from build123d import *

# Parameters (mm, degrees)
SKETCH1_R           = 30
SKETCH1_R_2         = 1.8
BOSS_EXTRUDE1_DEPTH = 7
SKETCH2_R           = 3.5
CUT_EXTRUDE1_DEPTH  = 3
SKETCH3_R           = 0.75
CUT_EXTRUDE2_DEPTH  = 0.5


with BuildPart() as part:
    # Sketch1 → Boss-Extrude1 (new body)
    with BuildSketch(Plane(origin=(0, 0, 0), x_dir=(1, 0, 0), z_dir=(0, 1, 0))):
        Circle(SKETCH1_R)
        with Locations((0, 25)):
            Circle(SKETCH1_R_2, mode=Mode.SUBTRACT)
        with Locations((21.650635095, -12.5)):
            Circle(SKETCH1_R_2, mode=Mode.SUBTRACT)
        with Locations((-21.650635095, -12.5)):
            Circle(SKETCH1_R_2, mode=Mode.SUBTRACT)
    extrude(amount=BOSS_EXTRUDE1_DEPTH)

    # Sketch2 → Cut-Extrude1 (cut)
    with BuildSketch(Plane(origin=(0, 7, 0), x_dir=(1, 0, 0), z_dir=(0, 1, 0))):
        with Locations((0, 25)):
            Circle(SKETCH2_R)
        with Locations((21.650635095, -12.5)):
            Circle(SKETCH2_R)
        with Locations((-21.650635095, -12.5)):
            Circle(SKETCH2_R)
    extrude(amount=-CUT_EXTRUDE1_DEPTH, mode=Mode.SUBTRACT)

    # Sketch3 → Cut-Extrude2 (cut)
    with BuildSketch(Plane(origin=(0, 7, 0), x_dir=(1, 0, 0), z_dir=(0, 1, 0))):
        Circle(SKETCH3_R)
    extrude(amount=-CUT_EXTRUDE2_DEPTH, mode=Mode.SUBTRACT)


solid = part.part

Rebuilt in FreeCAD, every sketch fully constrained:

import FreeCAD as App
import Part
import Sketcher

V = App.Vector
Q = App.Units.Quantity

doc = App.newDocument("Part")
body = doc.addObject("PartDesign::Body", "Body")

sketch1 = body.newObject("Sketcher::SketchObject", "Sketch")
sketch1.AttachmentSupport = (doc.getObject("XZ_Plane"), [""])
sketch1.MapMode = "FlatFace"
sketch1.addGeometry(Part.Circle(V(0, 0, 0), V(0, 0, 1), 30), False)
sketch1.addGeometry(Part.Circle(V(-21.650635, 12.5, 0), V(0, 0, 1), 1.8), False)
sketch1.addGeometry(Part.Circle(V(21.650635, 12.5, 0), V(0, 0, 1), 1.8), False)
sketch1.addGeometry(Part.Circle(V(0, -25, 0), V(0, 0, 1), 1.8), False)
sketch1.addConstraint(Sketcher.Constraint("Coincident", 0, 3, -1, 1))
sketch1.addConstraint(Sketcher.Constraint("Equal", 1, 2))
sketch1.addConstraint(Sketcher.Constraint("Equal", 2, 3))
sketch1.addConstraint(Sketcher.Constraint("Symmetric", 1, 3, 2, 3, -2))
sketch1.addConstraint(Sketcher.Constraint("PointOnObject", 3, 3, -2))
sketch1.addConstraint(Sketcher.Constraint("Diameter", 0, Q("60 mm")))
sketch1.addConstraint(Sketcher.Constraint("Diameter", 1, Q("3.6 mm")))
sketch1.addConstraint(Sketcher.Constraint("DistanceY", 3, 3, -1, 1, Q("25 mm")))
sketch1.addConstraint(Sketcher.Constraint("DistanceY", -1, 1, 1, 3, Q("12.5 mm")))
sketch1.addConstraint(Sketcher.Constraint("DistanceX", 1, 3, 2, 3, Q("43.30127 mm")))
pad1 = body.newObject("PartDesign::Pad", "Pad")
pad1.Profile = sketch1
pad1.Length = 7
pad1.Reversed = True

sketch2 = body.newObject("Sketcher::SketchObject", "Sketch001")
sketch2.AttachmentSupport = (doc.getObject("XZ_Plane"), [""])
sketch2.MapMode = "FlatFace"
sketch2.AttachmentOffset = App.Placement(V(0, 0, -7), App.Rotation())
sketch2.addGeometry(Part.Circle(V(0, -25, 0), V(0, 0, 1), 3.5), False)
sketch2.addGeometry(Part.Circle(V(21.650635, 12.5, 0), V(0, 0, 1), 3.5), False)
sketch2.addGeometry(Part.Circle(V(-21.650635, 12.5, 0), V(0, 0, 1), 3.5), False)
sketch2.addConstraint(Sketcher.Constraint("Equal", 0, 1))
sketch2.addConstraint(Sketcher.Constraint("Equal", 1, 2))
sketch2.addConstraint(Sketcher.Constraint("Symmetric", 1, 3, 2, 3, -2))
sketch2.addConstraint(Sketcher.Constraint("PointOnObject", 0, 3, -2))
sketch2.addConstraint(Sketcher.Constraint("Diameter", 0, Q("7 mm")))
sketch2.addConstraint(Sketcher.Constraint("DistanceY", 0, 3, -1, 1, Q("25 mm")))
sketch2.addConstraint(Sketcher.Constraint("DistanceY", -1, 1, 1, 3, Q("12.5 mm")))
sketch2.addConstraint(Sketcher.Constraint("DistanceX", 2, 3, 1, 3, Q("43.30127 mm")))
pocket1 = body.newObject("PartDesign::Pocket", "Pocket")
pocket1.Profile = sketch2
pocket1.Length = 3
pocket1.Reversed = True

sketch3 = body.newObject("Sketcher::SketchObject", "Sketch002")
sketch3.AttachmentSupport = (doc.getObject("XZ_Plane"), [""])
sketch3.MapMode = "FlatFace"
sketch3.AttachmentOffset = App.Placement(V(0, 0, -7), App.Rotation())
sketch3.addGeometry(Part.Circle(V(0, 0, 0), V(0, 0, 1), 0.75), False)
sketch3.addConstraint(Sketcher.Constraint("Coincident", 0, 3, -1, 1))
sketch3.addConstraint(Sketcher.Constraint("Diameter", 0, Q("1.5 mm")))
pocket2 = body.newObject("PartDesign::Pocket", "Pocket001")
pocket2.Profile = sketch3
pocket2.Length = 0.5
pocket2.Reversed = True

doc.recompute()
